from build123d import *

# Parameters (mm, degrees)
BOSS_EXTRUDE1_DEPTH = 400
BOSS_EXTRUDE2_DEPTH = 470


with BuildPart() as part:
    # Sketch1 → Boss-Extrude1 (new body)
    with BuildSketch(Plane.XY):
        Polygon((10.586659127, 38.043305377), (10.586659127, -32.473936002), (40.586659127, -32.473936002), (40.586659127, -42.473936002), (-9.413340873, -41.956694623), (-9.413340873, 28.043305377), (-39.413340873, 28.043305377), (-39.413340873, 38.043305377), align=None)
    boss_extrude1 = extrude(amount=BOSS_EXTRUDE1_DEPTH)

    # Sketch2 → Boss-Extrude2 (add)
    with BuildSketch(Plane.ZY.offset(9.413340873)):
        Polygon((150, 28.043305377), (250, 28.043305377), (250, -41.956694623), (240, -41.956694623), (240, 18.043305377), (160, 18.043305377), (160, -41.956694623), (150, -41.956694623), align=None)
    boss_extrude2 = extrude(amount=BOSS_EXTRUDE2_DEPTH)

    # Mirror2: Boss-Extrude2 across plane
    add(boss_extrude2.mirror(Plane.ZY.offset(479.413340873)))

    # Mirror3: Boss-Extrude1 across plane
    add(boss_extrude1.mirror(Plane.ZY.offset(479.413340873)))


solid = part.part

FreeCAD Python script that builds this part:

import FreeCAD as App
import Part
import Sketcher
Q = App.Units.Quantity


def add_polygon(sketch, points):
    """Adds a closed chain of lines whose ends are joined by coincident constraints."""
    first, n = sketch.GeometryCount, len(points)
    for a, b in zip(points, points[1:] + points[:1]):
        sketch.addGeometry(Part.LineSegment(App.Vector(*a, 0), App.Vector(*b, 0)), False)
    for i in range(n):
        sketch.addConstraint(Sketcher.Constraint("Coincident", first + i, 2, first + (i + 1) % n, 1))

doc = App.newDocument("Part")
body = doc.addObject("PartDesign::Body", "Body")

# Sketch on XY plane
sketch1 = body.newObject("Sketcher::SketchObject", "Sketch")
sketch1.AttachmentSupport = (doc.getObject("XY_Plane"), [""])
sketch1.MapMode = "FlatFace"
add_polygon(sketch1, [(10.586659, -32.473936), (10.586659, 38.043305), (-39.413341, 38.043305), (-39.413341, 28.043305), (-9.413341, 28.043305), (-9.413341, -41.956695), (40.586659, -42.473936), (40.586659, -32.473936)])  # lines 0-7
sketch1.addConstraint([
    Sketcher.Constraint("Vertical", 0),
    Sketcher.Constraint("Horizontal", 1),
    Sketcher.Constraint("Vertical", 2),
    Sketcher.Constraint("Horizontal", 3),
    Sketcher.Constraint("Vertical", 4),
    Sketcher.Constraint("Vertical", 6),
    Sketcher.Constraint("Horizontal", 7),
    Sketcher.Constraint("Equal", 3, 7),
    Sketcher.Constraint("Equal", 2, 6),
    Sketcher.Constraint("DistanceX", 1, 2, 1, 1, Q("50 mm")),
    Sketcher.Constraint("DistanceX", 3, 1, 3, 2, Q("30 mm")),
    Sketcher.Constraint("DistanceY", 2, 2, 2, 1, Q("10 mm")),
    Sketcher.Constraint("DistanceY", 4, 2, 4, 1, Q("70 mm")),
    Sketcher.Constraint("DistanceY", 0, 1, 0, 2, Q("70.517241 mm")),
    Sketcher.Constraint("DistanceX", -1, 1, 0, 2, Q("10.586659 mm")),
    Sketcher.Constraint("DistanceY", -1, 1, 0, 2, Q("38.043305 mm")),
])
pad1 = body.newObject("PartDesign::Pad", "Pad")
pad1.Profile = sketch1
pad1.Length = 400

# Sketch on YZ plane
sketch2 = body.newObject("Sketcher::SketchObject", "Sketch001")
sketch2.AttachmentSupport = (doc.getObject("YZ_Plane"), [""])
sketch2.MapMode = "FlatFace"
sketch2.AttachmentOffset = App.Placement(App.Vector(0, 0, -9.413341), App.Rotation())
add_polygon(sketch2, [(28.043305, 250), (28.043305, 150), (-41.956695, 150), (-41.956695, 160), (18.043305, 160), (18.043305, 240), (-41.956695, 240), (-41.956695, 250)])  # lines 0-7
sketch2.addConstraint([
    Sketcher.Constraint("Vertical", 0),
    Sketcher.Constraint("Horizontal", 1),
    Sketcher.Constraint("Vertical", 2),
    Sketcher.Constraint("Horizontal", 3),
    Sketcher.Constraint("Vertical", 4),
    Sketcher.Constraint("Horizontal", 5),
    Sketcher.Constraint("Vertical", 6),
    Sketcher.Constraint("Horizontal", 7),
    Sketcher.Constraint("Vertical", 2, 2, 5, 2),
    Sketcher.Constraint("Equal", 2, 6),
    Sketcher.Constraint("DistanceX", 1, 2, 1, 1, Q("70 mm")),
    Sketcher.Constraint("DistanceX", 3, 1, 3, 2, Q("60 mm")),
    Sketcher.Constraint("DistanceY", 0, 2, 0, 1, Q("100 mm")),
    Sketcher.Constraint("DistanceY", 2, 1, 2, 2, Q("10 mm")),
    Sketcher.Constraint("DistanceY", -1, 1, 0, 2, Q("150 mm")),
    Sketcher.Constraint("DistanceX", -1, 1, 0, 2, Q("28.043305 mm")),
])
pad2 = body.newObject("PartDesign::Pad", "Pad001")
pad2.Profile = sketch2
pad2.Length = 470
pad2.Reversed = True
doc.recompute()

datumplane = body.newObject("PartDesign::Plane", "DatumPlane")
datumplane.AttachmentSupport = (doc.getObject("YZ_Plane"), [""])
datumplane.MapMode = "FlatFace"
datumplane.AttachmentOffset = App.Placement(App.Vector(0, 0, -479.413341), App.Rotation())
mirrored = body.newObject("PartDesign::Mirrored", "Mirrored")
mirrored.Originals = [pad2]
mirrored.MirrorPlane = (datumplane, [""])
body.Tip = mirrored
doc.recompute()

datumplane2 = body.newObject("PartDesign::Plane", "DatumPlane001")
datumplane2.AttachmentSupport = (doc.getObject("YZ_Plane"), [""])
datumplane2.MapMode = "FlatFace"
datumplane2.AttachmentOffset = App.Placement(App.Vector(0, 0, -479.413341), App.Rotation())
mirrored2 = body.newObject("PartDesign::Mirrored", "Mirrored001")
mirrored2.Originals = [pad1]
mirrored2.MirrorPlane = (datumplane2, [""])
body.Tip = mirrored2

doc.recompute()
